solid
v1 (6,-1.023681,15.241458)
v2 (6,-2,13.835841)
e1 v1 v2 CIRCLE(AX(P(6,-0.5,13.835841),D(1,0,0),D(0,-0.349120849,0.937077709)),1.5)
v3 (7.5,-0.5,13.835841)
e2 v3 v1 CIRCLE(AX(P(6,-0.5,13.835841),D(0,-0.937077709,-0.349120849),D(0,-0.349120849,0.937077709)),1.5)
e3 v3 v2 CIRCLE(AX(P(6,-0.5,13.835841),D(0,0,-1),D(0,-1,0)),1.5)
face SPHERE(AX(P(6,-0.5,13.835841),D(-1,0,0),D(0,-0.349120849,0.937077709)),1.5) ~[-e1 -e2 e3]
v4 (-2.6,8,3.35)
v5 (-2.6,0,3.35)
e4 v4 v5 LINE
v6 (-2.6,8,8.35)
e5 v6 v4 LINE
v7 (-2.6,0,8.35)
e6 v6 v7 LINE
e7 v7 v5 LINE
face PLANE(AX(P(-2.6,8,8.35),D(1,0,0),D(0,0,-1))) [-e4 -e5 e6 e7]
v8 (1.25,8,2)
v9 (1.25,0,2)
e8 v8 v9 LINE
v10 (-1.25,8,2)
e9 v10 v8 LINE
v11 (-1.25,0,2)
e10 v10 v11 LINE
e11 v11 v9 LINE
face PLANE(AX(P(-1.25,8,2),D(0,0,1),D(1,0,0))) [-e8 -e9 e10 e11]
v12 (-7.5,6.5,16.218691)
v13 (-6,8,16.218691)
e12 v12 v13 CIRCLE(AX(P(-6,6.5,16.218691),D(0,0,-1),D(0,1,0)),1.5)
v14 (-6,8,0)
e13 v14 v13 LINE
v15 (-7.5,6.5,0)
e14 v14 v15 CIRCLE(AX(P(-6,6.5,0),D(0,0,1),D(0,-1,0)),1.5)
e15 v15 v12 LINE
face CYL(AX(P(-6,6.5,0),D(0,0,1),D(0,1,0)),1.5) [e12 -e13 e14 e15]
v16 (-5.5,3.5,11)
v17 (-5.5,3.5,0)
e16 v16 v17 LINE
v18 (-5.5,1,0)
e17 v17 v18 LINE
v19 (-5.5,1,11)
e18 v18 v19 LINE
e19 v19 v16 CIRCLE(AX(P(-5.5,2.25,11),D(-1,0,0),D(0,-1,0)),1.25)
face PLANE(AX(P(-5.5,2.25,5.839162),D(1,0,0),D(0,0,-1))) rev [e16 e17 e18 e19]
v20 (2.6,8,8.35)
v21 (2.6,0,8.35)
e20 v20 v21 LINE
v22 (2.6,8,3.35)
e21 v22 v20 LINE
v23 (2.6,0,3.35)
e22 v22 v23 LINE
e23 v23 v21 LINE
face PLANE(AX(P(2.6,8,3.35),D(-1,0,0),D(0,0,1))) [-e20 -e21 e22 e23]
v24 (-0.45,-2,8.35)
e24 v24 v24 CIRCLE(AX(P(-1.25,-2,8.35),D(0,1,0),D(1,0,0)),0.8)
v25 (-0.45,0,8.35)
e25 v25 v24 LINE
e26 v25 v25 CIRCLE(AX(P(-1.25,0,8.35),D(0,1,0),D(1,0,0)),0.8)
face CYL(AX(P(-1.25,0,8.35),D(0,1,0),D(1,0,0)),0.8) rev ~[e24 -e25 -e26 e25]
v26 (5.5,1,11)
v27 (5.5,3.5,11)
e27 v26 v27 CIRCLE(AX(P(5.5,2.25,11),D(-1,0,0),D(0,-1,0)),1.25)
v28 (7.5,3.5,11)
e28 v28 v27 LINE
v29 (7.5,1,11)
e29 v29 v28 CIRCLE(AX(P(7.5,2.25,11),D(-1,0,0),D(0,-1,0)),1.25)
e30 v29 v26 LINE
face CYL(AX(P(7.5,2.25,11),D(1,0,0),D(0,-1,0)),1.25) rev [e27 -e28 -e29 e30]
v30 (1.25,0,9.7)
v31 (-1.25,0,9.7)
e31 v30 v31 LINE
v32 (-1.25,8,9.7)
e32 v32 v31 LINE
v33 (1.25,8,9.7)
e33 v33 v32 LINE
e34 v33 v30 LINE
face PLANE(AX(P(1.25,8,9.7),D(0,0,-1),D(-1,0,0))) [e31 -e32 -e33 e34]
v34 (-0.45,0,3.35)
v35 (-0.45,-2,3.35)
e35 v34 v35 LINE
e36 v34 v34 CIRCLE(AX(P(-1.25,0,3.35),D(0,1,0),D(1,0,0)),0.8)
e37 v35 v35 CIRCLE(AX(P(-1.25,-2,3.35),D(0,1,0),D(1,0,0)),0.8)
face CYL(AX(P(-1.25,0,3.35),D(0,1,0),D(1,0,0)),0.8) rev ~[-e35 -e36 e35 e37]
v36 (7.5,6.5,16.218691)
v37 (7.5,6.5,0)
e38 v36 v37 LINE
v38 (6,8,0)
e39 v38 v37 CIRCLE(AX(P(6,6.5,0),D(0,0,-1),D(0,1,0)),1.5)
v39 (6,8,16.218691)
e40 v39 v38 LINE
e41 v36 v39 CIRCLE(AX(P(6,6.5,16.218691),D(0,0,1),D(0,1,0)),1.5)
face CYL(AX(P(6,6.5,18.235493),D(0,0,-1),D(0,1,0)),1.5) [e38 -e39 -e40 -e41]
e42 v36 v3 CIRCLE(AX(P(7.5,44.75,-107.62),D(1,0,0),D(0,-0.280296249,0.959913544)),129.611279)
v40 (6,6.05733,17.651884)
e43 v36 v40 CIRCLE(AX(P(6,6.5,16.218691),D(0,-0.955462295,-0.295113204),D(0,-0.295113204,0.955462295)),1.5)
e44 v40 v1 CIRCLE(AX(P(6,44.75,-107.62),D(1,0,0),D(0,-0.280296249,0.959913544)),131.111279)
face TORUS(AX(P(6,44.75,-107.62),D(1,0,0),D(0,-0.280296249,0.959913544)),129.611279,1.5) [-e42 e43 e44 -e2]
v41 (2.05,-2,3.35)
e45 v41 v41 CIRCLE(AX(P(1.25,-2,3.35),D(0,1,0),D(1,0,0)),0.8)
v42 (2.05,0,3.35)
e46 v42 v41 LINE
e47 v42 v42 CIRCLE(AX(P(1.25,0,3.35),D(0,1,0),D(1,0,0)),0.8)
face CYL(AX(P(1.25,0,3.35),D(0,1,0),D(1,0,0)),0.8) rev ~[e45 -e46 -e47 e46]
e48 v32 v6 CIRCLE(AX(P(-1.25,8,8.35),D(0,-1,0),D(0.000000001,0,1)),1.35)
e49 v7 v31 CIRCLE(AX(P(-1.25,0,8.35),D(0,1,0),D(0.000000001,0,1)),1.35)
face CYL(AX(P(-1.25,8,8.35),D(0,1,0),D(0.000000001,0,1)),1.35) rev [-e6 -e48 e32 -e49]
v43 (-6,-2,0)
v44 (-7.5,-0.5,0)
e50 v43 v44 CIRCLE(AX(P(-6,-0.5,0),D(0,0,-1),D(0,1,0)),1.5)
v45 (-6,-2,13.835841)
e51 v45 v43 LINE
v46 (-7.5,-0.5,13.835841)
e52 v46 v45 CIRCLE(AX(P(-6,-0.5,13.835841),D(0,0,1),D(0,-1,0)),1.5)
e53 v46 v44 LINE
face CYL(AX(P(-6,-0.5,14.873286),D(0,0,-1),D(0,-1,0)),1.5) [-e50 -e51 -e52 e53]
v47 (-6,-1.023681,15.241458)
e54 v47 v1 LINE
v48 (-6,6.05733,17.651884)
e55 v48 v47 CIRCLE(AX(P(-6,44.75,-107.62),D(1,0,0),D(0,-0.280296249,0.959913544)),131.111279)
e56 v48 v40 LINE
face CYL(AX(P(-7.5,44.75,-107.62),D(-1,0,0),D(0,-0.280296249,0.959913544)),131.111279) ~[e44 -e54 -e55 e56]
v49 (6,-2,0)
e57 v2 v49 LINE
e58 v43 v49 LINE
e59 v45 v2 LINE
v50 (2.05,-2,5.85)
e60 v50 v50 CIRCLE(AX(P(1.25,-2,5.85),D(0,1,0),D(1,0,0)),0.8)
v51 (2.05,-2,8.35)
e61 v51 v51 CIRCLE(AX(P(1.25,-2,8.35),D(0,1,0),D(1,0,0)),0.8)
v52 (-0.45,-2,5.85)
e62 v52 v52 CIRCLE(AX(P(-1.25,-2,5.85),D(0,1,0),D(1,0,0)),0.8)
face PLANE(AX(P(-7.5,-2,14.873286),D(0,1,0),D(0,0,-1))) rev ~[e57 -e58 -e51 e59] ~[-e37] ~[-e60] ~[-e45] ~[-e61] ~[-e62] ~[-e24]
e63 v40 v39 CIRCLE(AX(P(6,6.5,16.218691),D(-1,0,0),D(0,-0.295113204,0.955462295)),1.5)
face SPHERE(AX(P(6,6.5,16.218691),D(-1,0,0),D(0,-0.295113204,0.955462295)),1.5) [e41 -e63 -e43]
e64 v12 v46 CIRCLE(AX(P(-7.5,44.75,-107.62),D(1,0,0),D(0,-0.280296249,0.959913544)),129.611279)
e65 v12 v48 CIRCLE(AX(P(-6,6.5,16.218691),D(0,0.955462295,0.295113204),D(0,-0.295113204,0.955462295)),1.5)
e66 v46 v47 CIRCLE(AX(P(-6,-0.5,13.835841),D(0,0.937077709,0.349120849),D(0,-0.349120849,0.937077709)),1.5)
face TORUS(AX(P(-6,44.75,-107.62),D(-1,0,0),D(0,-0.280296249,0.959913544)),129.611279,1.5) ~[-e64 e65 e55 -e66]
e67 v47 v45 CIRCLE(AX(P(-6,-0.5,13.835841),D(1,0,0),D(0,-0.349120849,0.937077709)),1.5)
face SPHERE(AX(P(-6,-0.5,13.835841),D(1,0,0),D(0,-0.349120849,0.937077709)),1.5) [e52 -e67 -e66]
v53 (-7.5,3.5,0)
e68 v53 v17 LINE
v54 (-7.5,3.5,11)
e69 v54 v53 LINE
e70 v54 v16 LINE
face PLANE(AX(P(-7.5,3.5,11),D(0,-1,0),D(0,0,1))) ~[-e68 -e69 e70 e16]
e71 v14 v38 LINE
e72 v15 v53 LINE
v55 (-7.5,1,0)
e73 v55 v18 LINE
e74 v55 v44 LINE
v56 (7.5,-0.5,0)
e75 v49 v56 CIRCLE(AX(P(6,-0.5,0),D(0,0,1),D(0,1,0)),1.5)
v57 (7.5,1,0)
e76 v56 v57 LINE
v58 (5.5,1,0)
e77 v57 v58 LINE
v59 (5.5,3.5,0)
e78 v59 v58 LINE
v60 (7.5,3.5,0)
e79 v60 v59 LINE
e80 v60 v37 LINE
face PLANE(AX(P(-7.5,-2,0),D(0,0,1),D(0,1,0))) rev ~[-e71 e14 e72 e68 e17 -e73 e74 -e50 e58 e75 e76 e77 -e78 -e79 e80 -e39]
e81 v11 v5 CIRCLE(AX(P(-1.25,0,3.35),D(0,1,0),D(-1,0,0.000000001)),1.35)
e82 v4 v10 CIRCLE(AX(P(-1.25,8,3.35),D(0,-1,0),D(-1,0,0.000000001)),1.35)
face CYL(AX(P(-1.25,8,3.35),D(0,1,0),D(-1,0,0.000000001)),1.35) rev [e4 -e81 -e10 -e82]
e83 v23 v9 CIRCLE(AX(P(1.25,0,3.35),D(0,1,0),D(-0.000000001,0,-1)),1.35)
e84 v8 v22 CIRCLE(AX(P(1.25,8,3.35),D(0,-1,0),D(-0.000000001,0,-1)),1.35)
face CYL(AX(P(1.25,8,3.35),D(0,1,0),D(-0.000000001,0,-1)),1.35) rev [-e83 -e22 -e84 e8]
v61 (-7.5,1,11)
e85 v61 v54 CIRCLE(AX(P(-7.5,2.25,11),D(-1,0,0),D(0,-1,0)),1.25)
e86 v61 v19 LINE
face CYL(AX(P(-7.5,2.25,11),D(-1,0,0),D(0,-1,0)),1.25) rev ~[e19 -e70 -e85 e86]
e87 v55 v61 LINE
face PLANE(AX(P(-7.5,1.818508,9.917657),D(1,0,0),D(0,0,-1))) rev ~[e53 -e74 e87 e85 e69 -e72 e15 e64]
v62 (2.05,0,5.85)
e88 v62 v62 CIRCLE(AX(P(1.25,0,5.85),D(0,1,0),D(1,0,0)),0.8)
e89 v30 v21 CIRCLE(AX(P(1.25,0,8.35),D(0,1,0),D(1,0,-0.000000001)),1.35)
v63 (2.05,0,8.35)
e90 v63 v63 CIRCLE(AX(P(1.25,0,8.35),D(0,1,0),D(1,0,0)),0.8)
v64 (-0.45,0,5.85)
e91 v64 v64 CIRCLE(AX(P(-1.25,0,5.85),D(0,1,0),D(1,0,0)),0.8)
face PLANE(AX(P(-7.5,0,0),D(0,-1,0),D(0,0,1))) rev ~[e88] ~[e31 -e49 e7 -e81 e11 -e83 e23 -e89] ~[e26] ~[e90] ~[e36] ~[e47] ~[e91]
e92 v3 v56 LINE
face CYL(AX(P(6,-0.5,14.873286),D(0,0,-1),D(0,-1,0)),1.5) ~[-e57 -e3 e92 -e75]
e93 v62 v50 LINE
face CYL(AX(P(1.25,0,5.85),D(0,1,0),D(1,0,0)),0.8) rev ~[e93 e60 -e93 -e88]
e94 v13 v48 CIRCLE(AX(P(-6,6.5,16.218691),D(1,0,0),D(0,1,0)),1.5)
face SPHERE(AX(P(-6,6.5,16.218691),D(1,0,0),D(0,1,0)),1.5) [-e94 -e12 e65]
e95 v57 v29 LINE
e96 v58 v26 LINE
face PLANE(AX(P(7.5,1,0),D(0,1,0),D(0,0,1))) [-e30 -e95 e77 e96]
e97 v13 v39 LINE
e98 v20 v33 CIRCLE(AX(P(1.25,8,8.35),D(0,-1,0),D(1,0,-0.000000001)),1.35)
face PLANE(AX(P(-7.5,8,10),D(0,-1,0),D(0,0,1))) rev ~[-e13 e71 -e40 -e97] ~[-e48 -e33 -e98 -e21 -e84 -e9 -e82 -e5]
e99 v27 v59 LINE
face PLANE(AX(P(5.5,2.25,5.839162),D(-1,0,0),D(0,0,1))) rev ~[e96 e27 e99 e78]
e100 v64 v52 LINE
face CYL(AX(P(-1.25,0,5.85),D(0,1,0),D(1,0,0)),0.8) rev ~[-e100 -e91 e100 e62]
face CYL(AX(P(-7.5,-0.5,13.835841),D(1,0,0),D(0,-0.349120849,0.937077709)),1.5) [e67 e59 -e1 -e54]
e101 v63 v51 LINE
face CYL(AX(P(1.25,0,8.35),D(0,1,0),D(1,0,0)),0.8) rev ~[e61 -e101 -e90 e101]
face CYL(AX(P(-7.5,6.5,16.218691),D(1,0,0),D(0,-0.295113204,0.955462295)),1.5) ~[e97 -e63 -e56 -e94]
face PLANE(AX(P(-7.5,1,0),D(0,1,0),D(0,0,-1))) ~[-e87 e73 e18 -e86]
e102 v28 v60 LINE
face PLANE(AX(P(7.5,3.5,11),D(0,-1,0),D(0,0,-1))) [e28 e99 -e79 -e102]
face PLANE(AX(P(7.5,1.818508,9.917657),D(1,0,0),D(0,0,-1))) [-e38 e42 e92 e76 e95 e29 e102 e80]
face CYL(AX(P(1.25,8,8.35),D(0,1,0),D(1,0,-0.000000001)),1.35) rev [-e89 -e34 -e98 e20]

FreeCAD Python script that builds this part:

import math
import FreeCAD as App
import Part
import Sketcher
from FreeCAD import Vector
Q = App.Units.Quantity


def edges_at(feature, points):
    """Names of the edges that pass closest to the given points."""
    edges = feature.Shape.Edges
    near = lambda p: min(range(len(edges)), key=lambda i: edges[i].distToShape(Part.Vertex(*p))[0])
    return sorted({f"Edge{near(p) + 1}" for p in points})


def add_polygon(sketch, points):
    """Adds a closed chain of lines whose ends are joined by coincident constraints."""
    first, n = sketch.GeometryCount, len(points)
    for a, b in zip(points, points[1:] + points[:1]):
        sketch.addGeometry(Part.LineSegment(App.Vector(*a, 0), App.Vector(*b, 0)), False)
    for i in range(n):
        sketch.addConstraint(Sketcher.Constraint("Coincident", first + i, 2, first + (i + 1) % n, 1))

doc = App.newDocument("Part")
body = doc.addObject("PartDesign::Body", "Body")

# Sketch on XY plane
sketch1 = doc.addObject("Sketcher::SketchObject", "Sketch")
body.addObject(sketch1)
sketch1.AttachmentSupport = (doc.XY_Plane, [""])
sketch1.MapMode = "FlatFace"
add_polygon(sketch1, [(-7.5, 8), (-7.5, 0), (7.5, 0), (7.5, 8)])  # lines 0-3
sketch1.addConstraint([
    Sketcher.Constraint("Vertical", 0),
    Sketcher.Constraint("Horizontal", 1),
    Sketcher.Constraint("Vertical", 2),
    Sketcher.Constraint("Horizontal", 3),
    Sketcher.Constraint("Symmetric", 0, 2, 1, 2, -1, 1),
    Sketcher.Constraint("DistanceX", 1, 1, 1, 2, Q("15 mm")),
    Sketcher.Constraint("DistanceY", 0, 2, 0, 1, Q("8 mm")),
])
pad1 = doc.addObject("PartDesign::Pad", "Pad")
body.addObject(pad1)
pad1.Profile = sketch1
pad1.Length = 10

# Sketch on XZ plane
sketch2 = doc.addObject("Sketcher::SketchObject", "Sketch001")
body.addObject(sketch2)
sketch2.AttachmentSupport = (doc.XZ_Plane, [""])
sketch2.MapMode = "FlatFace"
sketch2.AttachmentOffset = App.Placement(Vector(0, 0, -8), App.Rotation())
sketch2.addGeometry([
    Part.LineSegment(Vector(1.25, 2, 0), Vector(-1.25, 2, 0)),  # 0
    Part.ArcOfCircle(Part.Circle(Vector(-1.25, 3.35, 0), Vector(0, 0, 1), 1.35), math.radians(180), math.radians(270)),  # 1
    Part.LineSegment(Vector(-2.6, 3.35, 0), Vector(-2.6, 8.35, 0)),  # 2
    Part.ArcOfCircle(Part.Circle(Vector(-1.25, 8.35, 0), Vector(0, 0, 1), 1.35), math.radians(90), math.radians(180)),  # 3
    Part.LineSegment(Vector(-1.25, 9.7, 0), Vector(1.25, 9.7, 0)),  # 4
    Part.ArcOfCircle(Part.Circle(Vector(1.25, 8.35, 0), Vector(0, 0, 1), 1.35), math.radians(0), math.radians(90)),  # 5
    Part.LineSegment(Vector(2.6, 8.35, 0), Vector(2.6, 3.35, 0)),  # 6
    Part.ArcOfCircle(Part.Circle(Vector(1.25, 3.35, 0), Vector(0, 0, 1), 1.35), math.radians(-90), math.radians(0)),  # 7
], False)
sketch2.addConstraint([
    Sketcher.Constraint("Tangent", 0, 2, 1, 2),
    Sketcher.Constraint("Tangent", 1, 1, 2, 1),
    Sketcher.Constraint("Tangent", 2, 2, 3, 2),
    Sketcher.Constraint("Tangent", 3, 1, 4, 1),
    Sketcher.Constraint("Tangent", 4, 2, 5, 2),
    Sketcher.Constraint("Tangent", 5, 1, 6, 1),
    Sketcher.Constraint("Tangent", 6, 2, 7, 2),
    Sketcher.Constraint("Tangent", 7, 1, 0, 1),
    Sketcher.Constraint("Horizontal", 0),
    Sketcher.Constraint("Vertical", 2),
    Sketcher.Constraint("Horizontal", 4),
    Sketcher.Constraint("Vertical", 6),
    Sketcher.Constraint("Equal", 1, 3),
    Sketcher.Constraint("Equal", 3, 5),
    Sketcher.Constraint("Equal", 5, 7),
    Sketcher.Constraint("DistanceY", 2, 1, 2, 2, Q("5 mm")),
    Sketcher.Constraint("Radius", 1, Q("1.35 mm")),
    Sketcher.Constraint("DistanceX", 0, 2, 0, 1, Q("2.5 mm")),
    Sketcher.Constraint("DistanceY", -1, 1, 0, 2, Q("2 mm")),
    Sketcher.Constraint("DistanceX", 1, 1, -1, 1, Q("2.6 mm")),
])
pocket1 = doc.addObject("PartDesign::Pocket", "Pocket")
body.addObject(pocket1)
pocket1.Profile = sketch2
pocket1.Type = "ThroughAll"
pocket1.Reversed = True

# Sketch on YZ plane
sketch3 = doc.addObject("Sketcher::SketchObject", "Sketch002")
body.addObject(sketch3)
sketch3.AttachmentSupport = (doc.YZ_Plane, [""])
sketch3.MapMode = "FlatFace"
sketch3.AttachmentOffset = App.Placement(Vector(0, 0, -7.5), App.Rotation())
sketch3.addGeometry([
    Part.ArcOfCircle(Part.Circle(Vector(44.75, -107.62, 0), Vector(0, 0, 1), 131.111279), math.radians(106.277887), math.radians(110.889534)),  # 0
    Part.LineSegment(Vector(-2, 14.873286, 0), Vector(-2, 0, 0)),  # 1
    Part.LineSegment(Vector(-2, 0, 0), Vector(0, 0, 0)),  # 2
    Part.LineSegment(Vector(0, 0, 0), Vector(0, 10, 0)),  # 3
    Part.LineSegment(Vector(0, 10, 0), Vector(8, 10, 0)),  # 4
    Part.LineSegment(Vector(8, 10, 0), Vector(8, 18.235493, 0)),  # 5
], False)
sketch3.addConstraint([
    Sketcher.Constraint("Coincident", 0, 2, 1, 1),
    Sketcher.Constraint("Coincident", 1, 2, 2, 1),
    Sketcher.Constraint("Coincident", 2, 2, 3, 1),
    Sketcher.Constraint("Coincident", 3, 2, 4, 1),
    Sketcher.Constraint("Coincident", 4, 2, 5, 1),
    Sketcher.Constraint("Coincident", 5, 2, 0, 1),
    Sketcher.Constraint("Vertical", 1),
    Sketcher.Constraint("Horizontal", 2),
    Sketcher.Constraint("Vertical", 3),
    Sketcher.Constraint("Horizontal", 4),
    Sketcher.Constraint("Vertical", 5),
    Sketcher.Constraint("Coincident", 2, 2, -1, 1),
    Sketcher.Constraint("DistanceX", 2, 1, 2, 2, Q("2 mm")),
    Sketcher.Constraint("DistanceX", 4, 1, 4, 2, Q("8 mm")),
    Sketcher.Constraint("DistanceY", 3, 1, 3, 2, Q("10 mm")),
    Sketcher.Constraint("DistanceX", -1, 1, 0, 3, Q("44.75 mm")),
    Sketcher.Constraint("DistanceY", 0, 3, -1, 1, Q("107.62 mm")),
    Sketcher.Constraint("Radius", 0, Q("131.111279 mm")),
])
pad2 = doc.addObject("PartDesign::Pad", "Pad001")
body.addObject(pad2)
pad2.Profile = sketch3
pad2.Length = 15

# Sketch on YZ plane
sketch4 = doc.addObject("Sketcher::SketchObject", "Sketch003")
body.addObject(sketch4)
sketch4.AttachmentSupport = (doc.YZ_Plane, [""])
sketch4.MapMode = "FlatFace"
sketch4.AttachmentOffset = App.Placement(Vector(0, 0, 7.5), App.Rotation())
sketch4.addGeometry([
    Part.LineSegment(Vector(1, 11, 0), Vector(1, 0, 0)),
    Part.LineSegment(Vector(1, 0, 0), Vector(3.5, 0, 0)),
    Part.LineSegment(Vector(3.5, 0, 0), Vector(3.5, 11, 0)),
    Part.ArcOfCircle(Part.Circle(Vector(2.25, 11, 0), Vector(0, 0, 1), 1.25), math.radians(0), math.radians(180)),
], False)
sketch4.addConstraint([
    Sketcher.Constraint("Coincident", 0, 2, 1, 1),
    Sketcher.Constraint("Coincident", 1, 2, 2, 1),
    Sketcher.Constraint("Tangent", 2, 2, 3, 1),
    Sketcher.Constraint("Tangent", 3, 2, 0, 1),
    Sketcher.Constraint("Vertical", 0),
    Sketcher.Constraint("Horizontal", 1),
    Sketcher.Constraint("Vertical", 2),
    Sketcher.Constraint("PointOnObject", 0, 2, -1),
    Sketcher.Constraint("DistanceY", 0, 2, 0, 1, Q("11 mm")),
    Sketcher.Constraint("Radius", 3, Q("1.25 mm")),
    Sketcher.Constraint("DistanceX", -1, 1, 0, 2, Q("1 mm")),
])
pocket2 = doc.addObject("PartDesign::Pocket", "Pocket001")
body.addObject(pocket2)
pocket2.Profile = sketch4
pocket2.Length = 2
doc.recompute()

mirrored = doc.addObject("PartDesign::Mirrored", "Mirrored")
body.addObject(mirrored)
mirrored.Originals = [pocket2]
mirrored.MirrorPlane = (doc.YZ_Plane, [""])
body.Tip = mirrored

# Sketch on XZ plane
sketch5 = doc.addObject("Sketcher::SketchObject", "Sketch004")
body.addObject(sketch5)
sketch5.AttachmentSupport = (doc.XZ_Plane, [""])
sketch5.MapMode = "FlatFace"
sketch5.addGeometry([
    Part.Circle(Vector(-1.25, 3.35, 0), Vector(0, 0, 1), 0.8),  # 0
    Part.Circle(Vector(1.25, 3.35, 0), Vector(0, 0, 1), 0.8),  # 1
    Part.Circle(Vector(1.25, 5.85, 0), Vector(0, 0, 1), 0.8),  # 2
    Part.Circle(Vector(1.25, 8.35, 0), Vector(0, 0, 1), 0.8),  # 3
    Part.Circle(Vector(-1.25, 5.85, 0), Vector(0, 0, 1), 0.8),  # 4
    Part.Circle(Vector(-1.25, 8.35, 0), Vector(0, 0, 1), 0.8),  # 5
], False)
sketch5.addConstraint([
    Sketcher.Constraint("Equal", 0, 1),
    Sketcher.Constraint("Equal", 1, 2),
    Sketcher.Constraint("Equal", 2, 3),
    Sketcher.Constraint("Equal", 3, 4),
    Sketcher.Constraint("Equal", 4, 5),
    Sketcher.Constraint("Symmetric", 0, 3, 1, 3, -2),
    Sketcher.Constraint("Symmetric", 2, 3, 4, 3, -2),
    Sketcher.Constraint("Symmetric", 3, 3, 5, 3, -2),
    Sketcher.Constraint("Vertical", 1, 3, 2, 3),
    Sketcher.Constraint("Vertical", 2, 3, 3, 3),
    Sketcher.Constraint("Diameter", 0, Q("1.6 mm")),
    Sketcher.Constraint("DistanceY", 1, 3, 3, 3, Q("5 mm")),
    Sketcher.Constraint("DistanceX", 0, 3, 1, 3, Q("2.5 mm")),
    Sketcher.Constraint("DistanceY", 1, 3, 2, 3, Q("2.5 mm")),
    Sketcher.Constraint("DistanceY", -1, 1, 0, 3, Q("3.35 mm")),
])
pocket3 = doc.addObject("PartDesign::Pocket", "Pocket002")
body.addObject(pocket3)
pocket3.Profile = sketch5
pocket3.Type = "ThroughAll"
pocket3.Midplane = True
doc.recompute()

fillet = doc.addObject("PartDesign::Fillet", "Fillet")
body.addObject(fillet)
fillet.Base = (pocket3, edges_at(pocket3, [
    (-7.5, -2, 7.437),
    (0, -2, 14.873),
    (-7.5, 2.966, 16.655),
    (0, 8, 18.235),
    (7.5, 2.966, 16.655),
    (7.5, -2, 7.437),
    (-7.5, 8, 9.118),
    (7.5, 8, 9.118),
]))
fillet.Radius = 1.5

doc.recompute()
